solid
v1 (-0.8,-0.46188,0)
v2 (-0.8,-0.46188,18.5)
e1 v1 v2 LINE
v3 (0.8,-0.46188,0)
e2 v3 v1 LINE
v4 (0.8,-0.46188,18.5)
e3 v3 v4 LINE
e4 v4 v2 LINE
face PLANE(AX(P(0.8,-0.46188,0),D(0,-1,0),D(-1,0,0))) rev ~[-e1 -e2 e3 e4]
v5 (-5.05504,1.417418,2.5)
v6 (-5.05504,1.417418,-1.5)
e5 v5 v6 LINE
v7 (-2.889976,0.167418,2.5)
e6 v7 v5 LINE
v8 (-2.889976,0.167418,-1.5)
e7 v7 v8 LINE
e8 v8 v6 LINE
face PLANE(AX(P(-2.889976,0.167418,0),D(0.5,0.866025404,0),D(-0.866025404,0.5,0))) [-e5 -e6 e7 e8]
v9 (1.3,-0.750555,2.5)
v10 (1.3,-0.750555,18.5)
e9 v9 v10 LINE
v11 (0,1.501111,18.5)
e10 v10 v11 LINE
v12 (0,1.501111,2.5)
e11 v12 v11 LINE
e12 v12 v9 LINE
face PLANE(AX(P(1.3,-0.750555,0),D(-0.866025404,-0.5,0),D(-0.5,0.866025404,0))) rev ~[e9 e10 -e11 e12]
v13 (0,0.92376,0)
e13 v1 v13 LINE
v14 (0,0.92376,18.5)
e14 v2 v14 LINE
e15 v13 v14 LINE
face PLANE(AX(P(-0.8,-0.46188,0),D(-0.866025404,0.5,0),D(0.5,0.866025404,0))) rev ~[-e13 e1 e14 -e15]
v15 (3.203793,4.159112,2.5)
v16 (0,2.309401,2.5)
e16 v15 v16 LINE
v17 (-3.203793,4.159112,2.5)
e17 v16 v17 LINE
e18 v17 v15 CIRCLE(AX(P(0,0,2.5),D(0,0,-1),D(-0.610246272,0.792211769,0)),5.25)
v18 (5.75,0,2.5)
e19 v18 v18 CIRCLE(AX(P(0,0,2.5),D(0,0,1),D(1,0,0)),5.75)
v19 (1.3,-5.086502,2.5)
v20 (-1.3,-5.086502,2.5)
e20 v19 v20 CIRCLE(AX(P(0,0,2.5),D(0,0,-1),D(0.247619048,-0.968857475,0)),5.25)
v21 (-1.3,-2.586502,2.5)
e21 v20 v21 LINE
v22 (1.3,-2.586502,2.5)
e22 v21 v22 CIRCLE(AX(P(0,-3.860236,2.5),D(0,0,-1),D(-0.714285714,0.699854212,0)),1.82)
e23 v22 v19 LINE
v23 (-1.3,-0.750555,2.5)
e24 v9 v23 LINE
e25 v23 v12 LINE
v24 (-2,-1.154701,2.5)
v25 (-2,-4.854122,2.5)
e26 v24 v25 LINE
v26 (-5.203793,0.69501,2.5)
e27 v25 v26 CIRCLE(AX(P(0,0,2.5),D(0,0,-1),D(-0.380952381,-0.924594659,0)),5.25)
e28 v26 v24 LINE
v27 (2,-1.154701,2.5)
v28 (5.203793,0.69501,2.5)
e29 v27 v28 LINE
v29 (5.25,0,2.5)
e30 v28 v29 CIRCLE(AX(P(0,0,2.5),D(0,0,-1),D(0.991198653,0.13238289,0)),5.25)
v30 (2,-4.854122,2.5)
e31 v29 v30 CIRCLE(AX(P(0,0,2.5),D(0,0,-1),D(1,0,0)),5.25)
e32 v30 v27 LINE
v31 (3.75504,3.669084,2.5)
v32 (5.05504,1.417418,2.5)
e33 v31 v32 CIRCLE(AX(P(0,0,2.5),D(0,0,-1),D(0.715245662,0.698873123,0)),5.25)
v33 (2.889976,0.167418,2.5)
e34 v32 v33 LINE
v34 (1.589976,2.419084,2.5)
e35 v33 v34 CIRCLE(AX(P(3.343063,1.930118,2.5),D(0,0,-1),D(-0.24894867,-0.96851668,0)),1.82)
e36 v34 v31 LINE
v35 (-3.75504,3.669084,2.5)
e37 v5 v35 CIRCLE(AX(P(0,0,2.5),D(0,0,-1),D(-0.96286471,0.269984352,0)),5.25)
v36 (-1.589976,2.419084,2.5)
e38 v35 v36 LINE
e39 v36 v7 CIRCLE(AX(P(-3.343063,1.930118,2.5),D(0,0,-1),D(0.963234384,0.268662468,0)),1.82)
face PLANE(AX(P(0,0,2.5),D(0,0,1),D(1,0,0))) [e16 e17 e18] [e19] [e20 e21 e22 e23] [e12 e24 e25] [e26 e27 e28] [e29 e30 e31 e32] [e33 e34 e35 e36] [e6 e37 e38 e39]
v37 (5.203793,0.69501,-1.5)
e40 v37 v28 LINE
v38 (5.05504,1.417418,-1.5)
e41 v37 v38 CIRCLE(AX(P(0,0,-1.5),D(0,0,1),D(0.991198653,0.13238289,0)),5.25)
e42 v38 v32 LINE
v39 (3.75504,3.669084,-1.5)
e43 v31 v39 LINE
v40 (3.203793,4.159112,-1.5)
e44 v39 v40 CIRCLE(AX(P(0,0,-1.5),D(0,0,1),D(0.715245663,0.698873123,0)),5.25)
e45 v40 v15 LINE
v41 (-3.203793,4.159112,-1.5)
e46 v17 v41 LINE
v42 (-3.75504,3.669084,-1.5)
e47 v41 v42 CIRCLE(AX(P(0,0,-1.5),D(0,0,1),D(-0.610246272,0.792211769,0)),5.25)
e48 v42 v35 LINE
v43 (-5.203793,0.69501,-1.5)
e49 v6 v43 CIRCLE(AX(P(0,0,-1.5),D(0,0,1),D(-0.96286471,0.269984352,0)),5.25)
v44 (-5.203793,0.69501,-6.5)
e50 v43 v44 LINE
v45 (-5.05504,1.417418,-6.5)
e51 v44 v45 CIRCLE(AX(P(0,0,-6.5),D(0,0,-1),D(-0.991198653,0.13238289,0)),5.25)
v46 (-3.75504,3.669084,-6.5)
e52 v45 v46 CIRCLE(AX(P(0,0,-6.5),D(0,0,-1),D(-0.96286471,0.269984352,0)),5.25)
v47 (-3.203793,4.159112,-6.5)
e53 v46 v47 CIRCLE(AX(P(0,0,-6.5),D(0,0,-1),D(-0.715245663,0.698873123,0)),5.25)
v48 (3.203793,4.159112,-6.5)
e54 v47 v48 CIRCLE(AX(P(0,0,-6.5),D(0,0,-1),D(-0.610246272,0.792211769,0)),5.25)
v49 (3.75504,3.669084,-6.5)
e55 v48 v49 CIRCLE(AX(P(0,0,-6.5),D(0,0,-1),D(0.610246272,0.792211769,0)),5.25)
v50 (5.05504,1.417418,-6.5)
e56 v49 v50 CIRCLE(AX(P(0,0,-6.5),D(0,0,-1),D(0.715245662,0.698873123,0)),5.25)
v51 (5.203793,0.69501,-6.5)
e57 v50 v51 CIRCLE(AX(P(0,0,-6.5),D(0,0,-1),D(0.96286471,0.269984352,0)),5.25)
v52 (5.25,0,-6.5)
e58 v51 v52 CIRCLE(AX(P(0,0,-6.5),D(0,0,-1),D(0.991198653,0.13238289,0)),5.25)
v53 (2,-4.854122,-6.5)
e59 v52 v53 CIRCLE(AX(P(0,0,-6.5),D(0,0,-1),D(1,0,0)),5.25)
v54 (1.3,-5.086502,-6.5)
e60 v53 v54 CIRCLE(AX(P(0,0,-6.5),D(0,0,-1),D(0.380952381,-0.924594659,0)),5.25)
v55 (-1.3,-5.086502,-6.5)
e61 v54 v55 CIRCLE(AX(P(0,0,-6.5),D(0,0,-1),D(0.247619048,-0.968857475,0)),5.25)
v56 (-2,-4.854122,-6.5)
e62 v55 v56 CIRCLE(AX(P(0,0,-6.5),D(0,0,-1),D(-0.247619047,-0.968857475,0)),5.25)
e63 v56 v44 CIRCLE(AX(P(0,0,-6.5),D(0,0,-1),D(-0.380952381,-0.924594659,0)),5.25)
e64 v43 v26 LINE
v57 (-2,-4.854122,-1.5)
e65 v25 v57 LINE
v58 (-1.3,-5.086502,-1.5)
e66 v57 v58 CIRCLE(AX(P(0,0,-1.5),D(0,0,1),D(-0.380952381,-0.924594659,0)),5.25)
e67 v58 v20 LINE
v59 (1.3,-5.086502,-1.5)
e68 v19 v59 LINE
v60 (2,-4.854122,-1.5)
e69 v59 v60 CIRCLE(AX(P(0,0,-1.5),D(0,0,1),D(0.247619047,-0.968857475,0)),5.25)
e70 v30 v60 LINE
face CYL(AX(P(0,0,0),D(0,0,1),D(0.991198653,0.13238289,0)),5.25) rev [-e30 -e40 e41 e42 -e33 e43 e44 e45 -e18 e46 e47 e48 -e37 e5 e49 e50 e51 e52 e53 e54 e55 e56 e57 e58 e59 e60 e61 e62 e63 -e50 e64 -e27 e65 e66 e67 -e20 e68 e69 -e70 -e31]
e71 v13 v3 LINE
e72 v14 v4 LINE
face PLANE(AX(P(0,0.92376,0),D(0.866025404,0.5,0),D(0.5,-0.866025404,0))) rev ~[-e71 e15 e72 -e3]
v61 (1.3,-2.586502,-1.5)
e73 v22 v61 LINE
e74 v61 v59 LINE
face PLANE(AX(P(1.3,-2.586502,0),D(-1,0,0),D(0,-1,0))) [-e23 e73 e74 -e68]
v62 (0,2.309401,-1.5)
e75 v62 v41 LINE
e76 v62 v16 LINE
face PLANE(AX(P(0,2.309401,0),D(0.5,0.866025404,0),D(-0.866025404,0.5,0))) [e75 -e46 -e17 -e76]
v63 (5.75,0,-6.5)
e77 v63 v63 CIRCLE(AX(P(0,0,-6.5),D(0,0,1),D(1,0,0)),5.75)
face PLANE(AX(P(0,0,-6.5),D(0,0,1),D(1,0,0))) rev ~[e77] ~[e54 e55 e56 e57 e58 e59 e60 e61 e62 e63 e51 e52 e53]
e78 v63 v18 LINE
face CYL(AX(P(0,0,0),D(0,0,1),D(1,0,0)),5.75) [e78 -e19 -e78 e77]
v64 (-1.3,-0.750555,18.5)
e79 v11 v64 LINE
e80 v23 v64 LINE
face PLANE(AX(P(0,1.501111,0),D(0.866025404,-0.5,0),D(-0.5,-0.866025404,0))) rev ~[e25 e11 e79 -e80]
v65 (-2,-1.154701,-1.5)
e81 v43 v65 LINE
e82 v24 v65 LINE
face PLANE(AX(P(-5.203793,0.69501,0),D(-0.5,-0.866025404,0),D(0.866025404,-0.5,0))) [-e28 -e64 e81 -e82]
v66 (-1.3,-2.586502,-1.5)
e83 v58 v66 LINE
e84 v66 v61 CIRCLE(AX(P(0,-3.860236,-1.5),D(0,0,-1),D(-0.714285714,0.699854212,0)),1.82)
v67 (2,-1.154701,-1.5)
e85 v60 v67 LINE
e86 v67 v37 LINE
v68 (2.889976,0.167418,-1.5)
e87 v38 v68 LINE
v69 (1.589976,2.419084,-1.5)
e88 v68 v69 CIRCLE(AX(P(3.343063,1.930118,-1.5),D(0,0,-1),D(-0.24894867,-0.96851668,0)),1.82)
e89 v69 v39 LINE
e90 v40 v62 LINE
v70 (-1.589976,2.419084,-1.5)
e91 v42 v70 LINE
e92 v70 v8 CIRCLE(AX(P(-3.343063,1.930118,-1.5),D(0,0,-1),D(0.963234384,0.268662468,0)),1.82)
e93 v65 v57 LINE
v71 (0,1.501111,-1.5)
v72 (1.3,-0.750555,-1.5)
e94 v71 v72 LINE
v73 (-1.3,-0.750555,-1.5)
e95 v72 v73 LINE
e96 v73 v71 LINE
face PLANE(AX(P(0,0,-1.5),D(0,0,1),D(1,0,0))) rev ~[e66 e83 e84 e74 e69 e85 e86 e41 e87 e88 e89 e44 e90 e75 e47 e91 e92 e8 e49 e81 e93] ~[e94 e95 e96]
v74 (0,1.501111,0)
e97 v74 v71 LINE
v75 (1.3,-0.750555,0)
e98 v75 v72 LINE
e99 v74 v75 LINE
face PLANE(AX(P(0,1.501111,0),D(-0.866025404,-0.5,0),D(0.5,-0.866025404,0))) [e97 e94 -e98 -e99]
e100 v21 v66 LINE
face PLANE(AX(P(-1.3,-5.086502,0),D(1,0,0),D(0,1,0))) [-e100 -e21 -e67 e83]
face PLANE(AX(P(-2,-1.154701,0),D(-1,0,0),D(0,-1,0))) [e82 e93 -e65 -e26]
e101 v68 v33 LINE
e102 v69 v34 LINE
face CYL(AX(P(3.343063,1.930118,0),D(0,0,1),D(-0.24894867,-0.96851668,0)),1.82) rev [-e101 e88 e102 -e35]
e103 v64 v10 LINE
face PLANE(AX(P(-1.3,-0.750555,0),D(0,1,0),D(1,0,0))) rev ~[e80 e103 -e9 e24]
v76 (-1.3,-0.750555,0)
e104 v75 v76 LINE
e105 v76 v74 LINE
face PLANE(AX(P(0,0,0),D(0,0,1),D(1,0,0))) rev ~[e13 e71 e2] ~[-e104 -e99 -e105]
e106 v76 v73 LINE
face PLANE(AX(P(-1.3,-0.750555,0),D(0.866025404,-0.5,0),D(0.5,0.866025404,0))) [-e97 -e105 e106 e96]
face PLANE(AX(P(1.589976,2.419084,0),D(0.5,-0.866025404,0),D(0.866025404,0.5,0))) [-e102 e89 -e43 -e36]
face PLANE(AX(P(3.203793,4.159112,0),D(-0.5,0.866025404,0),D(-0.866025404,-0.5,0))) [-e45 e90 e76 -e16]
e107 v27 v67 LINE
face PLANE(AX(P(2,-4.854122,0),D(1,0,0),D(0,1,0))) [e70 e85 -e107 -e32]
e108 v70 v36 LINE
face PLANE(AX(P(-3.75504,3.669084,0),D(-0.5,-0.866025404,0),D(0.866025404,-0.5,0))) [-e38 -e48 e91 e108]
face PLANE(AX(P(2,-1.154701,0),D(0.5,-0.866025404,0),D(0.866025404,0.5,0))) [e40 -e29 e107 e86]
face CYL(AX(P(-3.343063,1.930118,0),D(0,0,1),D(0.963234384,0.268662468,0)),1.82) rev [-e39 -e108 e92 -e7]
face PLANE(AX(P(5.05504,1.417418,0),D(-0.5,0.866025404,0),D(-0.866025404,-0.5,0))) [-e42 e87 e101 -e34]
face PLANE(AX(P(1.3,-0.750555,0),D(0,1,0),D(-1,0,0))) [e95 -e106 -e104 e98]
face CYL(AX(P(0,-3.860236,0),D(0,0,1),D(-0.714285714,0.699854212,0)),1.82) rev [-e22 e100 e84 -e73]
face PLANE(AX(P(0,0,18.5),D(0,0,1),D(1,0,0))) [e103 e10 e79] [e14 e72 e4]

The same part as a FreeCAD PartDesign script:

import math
import FreeCAD as App
import Part
import Sketcher

V = App.Vector
Q = App.Units.Quantity

doc = App.newDocument("Part")
body = doc.addObject("PartDesign::Body", "Body")

# Sketch on XY plane
sketch1 = body.newObject("Sketcher::SketchObject", "Sketch")
sketch1.AttachmentSupport = (doc.getObject("XY_Plane"), [""])
sketch1.MapMode = "FlatFace"
sketch1.addGeometry(Part.Circle(V(0, 0, 0), V(0, 0, 1), 5.75), False)
sketch1.addGeometry(Part.ArcOfCircle(Part.Circle(V(0, 0, 0), V(0, 0, 1), 5.25), math.radians(172.392688), math.radians(247.607312)), False)
sketch1.addGeometry(Part.LineSegment(V(-5.203793, 0.69501, 0), V(-2, -1.154701, 0)), False)
sketch1.addGeometry(Part.LineSegment(V(-2, -1.154701, 0), V(-2, -4.854122, 0)), False)
sketch1.addGeometry(Part.ArcOfCircle(Part.Circle(V(0, 0, 0), V(0, 0, 1), 5.25), math.radians(-104.336664), math.radians(-75.663336)), False)
sketch1.addGeometry(Part.LineSegment(V(-1.3, -5.086502, 0), V(-1.3, -2.586502, 0)), False)
sketch1.addGeometry(Part.ArcOfCircle(Part.Circle(V(0, -3.860236, 0), V(0, 0, 1), 1.82), math.radians(44.415309), math.radians(135.584691)), False)
sketch1.addGeometry(Part.LineSegment(V(1.3, -2.586502, 0), V(1.3, -5.086502, 0)), False)
sketch1.addGeometry(Part.ArcOfCircle(Part.Circle(V(0, 0, 0), V(0, 0, 1), 5.25), math.radians(-67.607312), math.radians(0)), False)
sketch1.addGeometry(Part.LineSegment(V(2, -4.854122, 0), V(2, -1.154701, 0)), False)
sketch1.addGeometry(Part.LineSegment(V(2, -1.154701, 0), V(5.203793, 0.69501, 0)), False)
sketch1.addGeometry(Part.ArcOfCircle(Part.Circle(V(0, 0, 0), V(0, 0, 1), 5.25), math.radians(0), math.radians(7.607312)), False)
sketch1.addGeometry(Part.ArcOfCircle(Part.Circle(V(0, 0, 0), V(0, 0, 1), 5.25), math.radians(135.663336), math.radians(164.336664)), False)
sketch1.addGeometry(Part.LineSegment(V(-3.75504, 3.669084, 0), V(-1.589976, 2.419084, 0)), False)
sketch1.addGeometry(Part.ArcOfCircle(Part.Circle(V(-3.343063, 1.930118, 0), V(0, 0, 1), 1.82), math.radians(-75.584691), math.radians(15.584691)), False)
sketch1.addGeometry(Part.LineSegment(V(-2.889976, 0.167418, 0), V(-5.05504, 1.417418, 0)), False)
sketch1.addGeometry(Part.LineSegment(V(1.3, -0.750555, 0), V(-1.3, -0.750555, 0)), False)
sketch1.addGeometry(Part.LineSegment(V(-1.3, -0.750555, 0), V(0, 1.501111, 0)), False)
sketch1.addGeometry(Part.LineSegment(V(0, 1.501111, 0), V(1.3, -0.750555, 0)), False)
sketch1.addGeometry(Part.ArcOfCircle(Part.Circle(V(0, 0, 0), V(0, 0, 1), 5.25), math.radians(15.663336), math.radians(44.336664)), False)
sketch1.addGeometry(Part.LineSegment(V(5.05504, 1.417418, 0), V(2.889976, 0.167418, 0)), False)
sketch1.addGeometry(Part.ArcOfCircle(Part.Circle(V(3.343063, 1.930118, 0), V(0, 0, 1), 1.82), math.radians(164.415309), math.radians(255.584691)), False)
sketch1.addGeometry(Part.LineSegment(V(1.589976, 2.419084, 0), V(3.75504, 3.669084, 0)), False)
sketch1.addGeometry(Part.ArcOfCircle(Part.Circle(V(0, 0, 0), V(0, 0, 1), 5.25), math.radians(52.392688), math.radians(127.607312)), False)
sketch1.addGeometry(Part.LineSegment(V(3.203793, 4.159112, 0), V(0, 2.309401, 0)), False)
sketch1.addGeometry(Part.LineSegment(V(0, 2.309401, 0), V(-3.203793, 4.159112, 0)), False)
sketch1.addConstraint(Sketcher.Constraint("Coincident", 1, 1, 2, 1))
sketch1.addConstraint(Sketcher.Constraint("Coincident", 2, 2, 3, 1))
sketch1.addConstraint(Sketcher.Constraint("Coincident", 3, 2, 1, 2))
sketch1.addConstraint(Sketcher.Constraint("Coincident", 4, 1, 5, 1))
sketch1.addConstraint(Sketcher.Constraint("Coincident", 5, 2, 6, 2))
sketch1.addConstraint(Sketcher.Constraint("Coincident", 6, 1, 7, 1))
sketch1.addConstraint(Sketcher.Constraint("Coincident", 7, 2, 4, 2))
sketch1.addConstraint(Sketcher.Constraint("Coincident", 8, 1, 9, 1))
sketch1.addConstraint(Sketcher.Constraint("Coincident", 9, 2, 10, 1))
sketch1.addConstraint(Sketcher.Constraint("Coincident", 10, 2, 11, 2))
sketch1.addConstraint(Sketcher.Constraint("Tangent", 11, 1, 8, 2))
sketch1.addConstraint(Sketcher.Constraint("Coincident", 12, 1, 13, 1))
sketch1.addConstraint(Sketcher.Constraint("Coincident", 13, 2, 14, 2))
sketch1.addConstraint(Sketcher.Constraint("Coincident", 14, 1, 15, 1))
sketch1.addConstraint(Sketcher.Constraint("Coincident", 15, 2, 12, 2))
sketch1.addConstraint(Sketcher.Constraint("Coincident", 16, 2, 17, 1))
sketch1.addConstraint(Sketcher.Constraint("Coincident", 17, 2, 18, 1))
sketch1.addConstraint(Sketcher.Constraint("Coincident", 18, 2, 16, 1))
sketch1.addConstraint(Sketcher.Constraint("Coincident", 19, 1, 20, 1))
sketch1.addConstraint(Sketcher.Constraint("Coincident", 20, 2, 21, 2))
sketch1.addConstraint(Sketcher.Constraint("Coincident", 21, 1, 22, 1))
sketch1.addConstraint(Sketcher.Constraint("Coincident", 22, 2, 19, 2))
sketch1.addConstraint(Sketcher.Constraint("Coincident", 23, 1, 24, 1))
sketch1.addConstraint(Sketcher.Constraint("Coincident", 24, 2, 25, 1))
sketch1.addConstraint(Sketcher.Constraint("Coincident", 25, 2, 23, 2))
sketch1.addConstraint(Sketcher.Constraint("Vertical", 3))
sketch1.addConstraint(Sketcher.Constraint("Vertical", 5))
sketch1.addConstraint(Sketcher.Constraint("Vertical", 7))
sketch1.addConstraint(Sketcher.Constraint("Vertical", 9))
sketch1.addConstraint(Sketcher.Constraint("Horizontal", 16))
sketch1.addConstraint(Sketcher.Constraint("Coincident", 0, 3, -1, 1))
sketch1.addConstraint(Sketcher.Constraint("Coincident", 1, 3, -1, 1))
sketch1.addConstraint(Sketcher.Constraint("Coincident", 4, 3, -1, 1))
sketch1.addConstraint(Sketcher.Constraint("Coincident", 8, 3, -1, 1))
sketch1.addConstraint(Sketcher.Constraint("Coincident", 12, 3, -1, 1))
sketch1.addConstraint(Sketcher.Constraint("Coincident", 19, 3, -1, 1))
sketch1.addConstraint(Sketcher.Constraint("Coincident", 23, 3, -1, 1))
sketch1.addConstraint(Sketcher.Constraint("Equal", 1, 4))
sketch1.addConstraint(Sketcher.Constraint("Equal", 4, 8))
sketch1.addConstraint(Sketcher.Constraint("Equal", 8, 11))
sketch1.addConstraint(Sketcher.Constraint("Equal", 11, 12))
sketch1.addConstraint(Sketcher.Constraint("Equal", 6, 14))
sketch1.addConstraint(Sketcher.Constraint("Equal", 12, 19))
sketch1.addConstraint(Sketcher.Constraint("Equal", 14, 21))
sketch1.addConstraint(Sketcher.Constraint("Equal", 19, 23))
sketch1.addConstraint(Sketcher.Constraint("Symmetric", 14, 3, 21, 3, -2))
sketch1.addConstraint(Sketcher.Constraint("Symmetric", 5, 2, 6, 1, -2))
sketch1.addConstraint(Sketcher.Constraint("Symmetric", 2, 2, 9, 2, -2))
sketch1.addConstraint(Sketcher.Constraint("PointOnObject", 11, 1, -1))
sketch1.addConstraint(Sketcher.Constraint("PointOnObject", 17, 2, -2))
sketch1.addConstraint(Sketcher.Constraint("PointOnObject", 24, 2, -2))
sketch1.addConstraint(Sketcher.Constraint("Parallel", 2, 13))
sketch1.addConstraint(Sketcher.Constraint("Parallel", 13, 15))
sketch1.addConstraint(Sketcher.Constraint("Perpendicular", 15, 17))
sketch1.addConstraint(Sketcher.Constraint("Perpendicular", 10, 18))
sketch1.addConstraint(Sketcher.Constraint("Perpendicular", 18, 20))
sketch1.addConstraint(Sketcher.Constraint("Parallel", 20, 22))
sketch1.addConstraint(Sketcher.Constraint("Parallel", 22, 24))
sketch1.addConstraint(Sketcher.Constraint("Perpendicular", 17, 25))
sketch1.addConstraint(Sketcher.Constraint("Horizontal", 1, 1, 10, 2))
sketch1.addConstraint(Sketcher.Constraint("Horizontal", 15, 2, 19, 1))
sketch1.addConstraint(Sketcher.Constraint("Horizontal", 13, 2, 21, 1))
sketch1.addConstraint(Sketcher.Constraint("Vertical", 5, 2, 16, 2))
sketch1.addConstraint(Sketcher.Constraint("Equal", 13, 15))
sketch1.addConstraint(Sketcher.Constraint("Equal", 10, 24))
sketch1.addConstraint(Sketcher.Constraint("Diameter", 0, Q("11.5 mm")))
sketch1.addConstraint(Sketcher.Constraint("Angle", 2, Q("-30 deg")))
sketch1.addConstraint(Sketcher.Constraint("Radius", 1, Q("5.25 mm")))
sketch1.addConstraint(Sketcher.Constraint("Radius", 6, Q("1.82 mm")))
sketch1.addConstraint(Sketcher.Constraint("DistanceX", 16, 2, 16, 1, Q("2.6 mm")))
sketch1.addConstraint(Sketcher.Constraint("DistanceY", 5, 1, 5, 2, Q("2.5 mm")))
sketch1.addConstraint(Sketcher.Constraint("DistanceX", 2, 2, -1, 1, Q("2 mm")))
sketch1.addConstraint(Sketcher.Constraint("Distance", 13, Q("2.5 mm")))
sketch1.addConstraint(Sketcher.Constraint("DistanceX", 14, 1, 13, 2, Q("1.3 mm")))
sketch1.addConstraint(Sketcher.Constraint("DistanceY", 3, 2, 3, 1, Q("3.699421 mm")))
sketch1.addConstraint(Sketcher.Constraint("DistanceY", 14, 1, 14, 3, Q("1.7627 mm")))
sketch1.addConstraint(Sketcher.Constraint("DistanceY", -1, 1, 17, 2, Q("1.501111 mm")))
pad1 = body.newObject("PartDesign::Pad", "Pad")
pad1.Profile = sketch1
pad1.Length = 2.5

# Sketch on XY plane
sketch2 = body.newObject("Sketcher::SketchObject", "Sketch001")
sketch2.AttachmentSupport = (doc.getObject("XY_Plane"), [""])
sketch2.MapMode = "FlatFace"
sketch2.addGeometry(Part.LineSegment(V(1.3, -0.750555, 0), V(0, 1.501111, 0)), False)
sketch2.addGeometry(Part.LineSegment(V(0, 1.501111, 0), V(-1.3, -0.750555, 0)), False)
sketch2.addGeometry(Part.LineSegment(V(-1.3, -0.750555, 0), V(1.3, -0.750555, 0)), False)
sketch2.addGeometry(Part.LineSegment(V(0.8, -0.46188, 0), V(-0.8, -0.46188, 0)), False)
sketch2.addGeometry(Part.LineSegment(V(-0.8, -0.46188, 0), V(0, 0.92376, 0)), False)
sketch2.addGeometry(Part.LineSegment(V(0, 0.92376, 0), V(0.8, -0.46188, 0)), False)
sketch2.addConstraint(Sketcher.Constraint("Coincident", 0, 2, 1, 1))
sketch2.addConstraint(Sketcher.Constraint("Coincident", 1, 2, 2, 1))
sketch2.addConstraint(Sketcher.Constraint("Coincident", 2, 2, 0, 1))
sketch2.addConstraint(Sketcher.Constraint("Coincident", 3, 2, 4, 1))
sketch2.addConstraint(Sketcher.Constraint("Coincident", 4, 2, 5, 1))
sketch2.addConstraint(Sketcher.Constraint("Coincident", 5, 2, 3, 1))
sketch2.addConstraint(Sketcher.Constraint("Horizontal", 2))
sketch2.addConstraint(Sketcher.Constraint("Horizontal", 3))
sketch2.addConstraint(Sketcher.Constraint("PointOnObject", 0, 2, -2))
sketch2.addConstraint(Sketcher.Constraint("PointOnObject", 4, 2, -2))
sketch2.addConstraint(Sketcher.Constraint("Parallel", 1, 4))
sketch2.addConstraint(Sketcher.Constraint("Parallel", 0, 5))
sketch2.addConstraint(Sketcher.Constraint("Equal", 0, 1))
sketch2.addConstraint(Sketcher.Constraint("Angle", 0, Q("120 deg")))
sketch2.addConstraint(Sketcher.Constraint("DistanceX", 2, 1, 2, 2, Q("2.6 mm")))
sketch2.addConstraint(Sketcher.Constraint("DistanceX", 3, 2, 3, 1, Q("1.6 mm")))
sketch2.addConstraint(Sketcher.Constraint("DistanceY", -1, 1, 0, 2, Q("1.501111 mm")))
sketch2.addConstraint(Sketcher.Constraint("DistanceY", 3, 2, -1, 1, Q("0.46188 mm")))
pad2 = body.newObject("PartDesign::Pad", "Pad001")
pad2.Profile = sketch2
pad2.Length = 18.5

# Sketch on XY plane
sketch3 = body.newObject("Sketcher::SketchObject", "Sketch002")
sketch3.AttachmentSupport = (doc.getObject("XY_Plane"), [""])
sketch3.MapMode = "FlatFace"
sketch3.addGeometry(Part.Circle(V(0, 0, 0), V(0, 0, 1), 5.75), False)
sketch3.addGeometry(Part.ArcOfCircle(Part.Circle(V(0, 0, 0), V(0, 0, 1), 5.25), math.radians(7.607312), math.radians(15.663336)), False)
sketch3.addGeometry(Part.ArcOfCircle(Part.Circle(V(0, 0, 0), V(0, 0, 1), 5.25), math.radians(0), math.radians(7.607312)), False)
sketch3.addGeometry(Part.ArcOfCircle(Part.Circle(V(0, 0, 0), V(0, 0, 1), 5.25), math.radians(-67.607312), math.radians(0)), False)
sketch3.addGeometry(Part.ArcOfCircle(Part.Circle(V(0, 0, 0), V(0, 0, 1), 5.25), math.radians(-75.663336), math.radians(-67.607312)), False)
sketch3.addGeometry(Part.ArcOfCircle(Part.Circle(V(0, 0, 0), V(0, 0, 1), 5.25), math.radians(-104.336664), math.radians(-75.663336)), False)
sketch3.addGeometry(Part.ArcOfCircle(Part.Circle(V(0, 0, 0), V(0, 0, 1), 5.25), math.radians(-112.392688), math.radians(-104.336664)), False)
sketch3.addGeometry(Part.ArcOfCircle(Part.Circle(V(0, 0, 0), V(0, 0, 1), 5.25), math.radians(172.392688), math.radians(247.607312)), False)
sketch3.addGeometry(Part.ArcOfCircle(Part.Circle(V(0, 0, 0), V(0, 0, 1), 5.25), math.radians(164.336664), math.radians(172.392688)), False)
sketch3.addGeometry(Part.ArcOfCircle(Part.Circle(V(0, 0, 0), V(0, 0, 1), 5.25), math.radians(135.663336), math.radians(164.336664)), False)
sketch3.addGeometry(Part.ArcOfCircle(Part.Circle(V(0, 0, 0), V(0, 0, 1), 5.25), math.radians(127.607312), math.radians(135.663336)), False)
sketch3.addGeometry(Part.ArcOfCircle(Part.Circle(V(0, 0, 0), V(0, 0, 1), 5.25), math.radians(52.392688), math.radians(127.607312)), False)
sketch3.addGeometry(Part.ArcOfCircle(Part.Circle(V(0, 0, 0), V(0, 0, 1), 5.25), math.radians(44.336664), math.radians(52.392688)), False)
sketch3.addGeometry(Part.ArcOfCircle(Part.Circle(V(0, 0, 0), V(0, 0, 1), 5.25), math.radians(15.663336), math.radians(44.336664)), False)
sketch3.addConstraint(Sketcher.Constraint("Tangent", 1, 1, 2, 2))
sketch3.addConstraint(Sketcher.Constraint("Tangent", 2, 1, 3, 2))
sketch3.addConstraint(Sketcher.Constraint("Tangent", 3, 1, 4, 2))
sketch3.addConstraint(Sketcher.Constraint("Tangent", 4, 1, 5, 2))
sketch3.addConstraint(Sketcher.Constraint("Tangent", 5, 1, 6, 2))
sketch3.addConstraint(Sketcher.Constraint("Tangent", 6, 1, 7, 2))
sketch3.addConstraint(Sketcher.Constraint("Tangent", 7, 1, 8, 2))
sketch3.addConstraint(Sketcher.Constraint("Tangent", 8, 1, 9, 2))
sketch3.addConstraint(Sketcher.Constraint("Tangent", 9, 1, 10, 2))
sketch3.addConstraint(Sketcher.Constraint("Tangent", 10, 1, 11, 2))
sketch3.addConstraint(Sketcher.Constraint("Tangent", 11, 1, 12, 2))
sketch3.addConstraint(Sketcher.Constraint("Tangent", 12, 1, 13, 2))
sketch3.addConstraint(Sketcher.Constraint("Tangent", 13, 1, 1, 2))
sketch3.addConstraint(Sketcher.Constraint("Coincident", 0, 3, -1, 1))
sketch3.addConstraint(Sketcher.Constraint("Coincident", 1, 3, -1, 1))
sketch3.addConstraint(Sketcher.Constraint("Coincident", 3, 3, -1, 1))
sketch3.addConstraint(Sketcher.Constraint("Coincident", 5, 3, -1, 1))
sketch3.addConstraint(Sketcher.Constraint("Coincident", 7, 3, -1, 1))
sketch3.addConstraint(Sketcher.Constraint("Coincident", 9, 3, -1, 1))
sketch3.addConstraint(Sketcher.Constraint("Coincident", 11, 3, -1, 1))
sketch3.addConstraint(Sketcher.Constraint("PointOnObject", 2, 1, -1))
sketch3.addConstraint(Sketcher.Constraint("Horizontal", 4, 1, 5, 1))
sketch3.addConstraint(Sketcher.Constraint("Horizontal", 3, 1, 6, 1))
sketch3.addConstraint(Sketcher.Constraint("Horizontal", 1, 1, 7, 1))
sketch3.addConstraint(Sketcher.Constraint("Horizontal", 10, 1, 11, 1))
sketch3.addConstraint(Sketcher.Constraint("Horizontal", 9, 1, 12, 1))
sketch3.addConstraint(Sketcher.Constraint("Horizontal", 8, 1, 13, 1))
sketch3.addConstraint(Sketcher.Constraint("Diameter", 0, Q("11.5 mm")))
sketch3.addConstraint(Sketcher.Constraint("Radius", 1, Q("5.25 mm")))
sketch3.addConstraint(Sketcher.Constraint("DistanceX", -1, 1, 3, 1, Q("2 mm")))
sketch3.addConstraint(Sketcher.Constraint("DistanceX", 7, 1, 10, 1, Q("2 mm")))
sketch3.addConstraint(Sketcher.Constraint("DistanceX", -1, 1, 4, 1, Q("1.3 mm")))
sketch3.addConstraint(Sketcher.Constraint("DistanceX", 8, 1, 9, 1, Q("1.3 mm")))
sketch3.addConstraint(Sketcher.Constraint("DistanceY", 7, 1, 10, 1, Q("3.464102 mm")))
sketch3.addConstraint(Sketcher.Constraint("DistanceX", 8, 1, -1, 1, Q("5.05504 mm")))
pad3 = body.newObject("PartDesign::Pad", "Pad002")
pad3.Profile = sketch3
pad3.Length = 6.5
pad3.Reversed = True

# Sketch on XY plane
sketch4 = body.newObject("Sketcher::SketchObject", "Sketch003")
sketch4.AttachmentSupport = (doc.getObject("XY_Plane"), [""])
sketch4.MapMode = "FlatFace"
sketch4.addGeometry(Part.LineSegment(V(2, -1.154701, 0), V(5.203793, 0.69501, 0)), False)
sketch4.addGeometry(Part.ArcOfCircle(Part.Circle(V(0, 0, 0), V(0, 0, 1), 5.25), math.radians(7.607312), math.radians(15.663336)), False)
sketch4.addGeometry(Part.LineSegment(V(5.05504, 1.417418, 0), V(2.889976, 0.167418, 0)), False)
sketch4.addGeometry(Part.ArcOfCircle(Part.Circle(V(3.343063, 1.930118, 0), V(0, 0, 1), 1.82), math.radians(164.415309), math.radians(255.584691)), False)
sketch4.addGeometry(Part.LineSegment(V(1.589976, 2.419084, 0), V(3.75504, 3.669084, 0)), False)
sketch4.addGeometry(Part.ArcOfCircle(Part.Circle(V(0, 0, 0), V(0, 0, 1), 5.25), math.radians(44.336664), math.radians(52.392688)), False)
sketch4.addGeometry(Part.LineSegment(V(3.203793, 4.159112, 0), V(0, 2.309401, 0)), False)
sketch4.addGeometry(Part.LineSegment(V(0, 2.309401, 0), V(-3.203793, 4.159112, 0)), False)
sketch4.addGeometry(Part.ArcOfCircle(Part.Circle(V(0, 0, 0), V(0, 0, 1), 5.25), math.radians(127.607312), math.radians(135.663336)), False)
sketch4.addGeometry(Part.LineSegment(V(-3.75504, 3.669084, 0), V(-1.589976, 2.419084, 0)), False)
sketch4.addGeometry(Part.ArcOfCircle(Part.Circle(V(-3.343063, 1.930118, 0), V(0, 0, 1), 1.82), math.radians(-75.584691), math.radians(15.584691)), False)
sketch4.addGeometry(Part.LineSegment(V(-2.889976, 0.167418, 0), V(-5.05504, 1.417418, 0)), False)
sketch4.addGeometry(Part.ArcOfCircle(Part.Circle(V(0, 0, 0), V(0, 0, 1), 5.25), math.radians(164.336664), math.radians(172.392688)), False)
sketch4.addGeometry(Part.LineSegment(V(-5.203793, 0.69501, 0), V(-2, -1.154701, 0)), False)
sketch4.addGeometry(Part.LineSegment(V(-2, -1.154701, 0), V(-2, -4.854122, 0)), False)
sketch4.addGeometry(Part.ArcOfCircle(Part.Circle(V(0, 0, 0), V(0, 0, 1), 5.25), math.radians(-112.392688), math.radians(-104.336664)), False)
sketch4.addGeometry(Part.LineSegment(V(-1.3, -5.086502, 0), V(-1.3, -2.586502, 0)), False)
sketch4.addGeometry(Part.ArcOfCircle(Part.Circle(V(0, -3.860236, 0), V(0, 0, 1), 1.82), math.radians(44.415309), math.radians(135.584691)), False)
sketch4.addGeometry(Part.LineSegment(V(1.3, -2.586502, 0), V(1.3, -5.086502, 0)), False)
sketch4.addGeometry(Part.ArcOfCircle(Part.Circle(V(0, 0, 0), V(0, 0, 1), 5.25), math.radians(-75.663336), math.radians(-67.607312)), False)
sketch4.addGeometry(Part.LineSegment(V(2, -4.854122, 0), V(2, -1.154701, 0)), False)
sketch4.addGeometry(Part.LineSegment(V(1.3, -0.750555, 0), V(-1.3, -0.750555, 0)), False)
sketch4.addGeometry(Part.LineSegment(V(-1.3, -0.750555, 0), V(0, 1.501111, 0)), False)
sketch4.addGeometry(Part.LineSegment(V(0, 1.501111, 0), V(1.3, -0.750555, 0)), False)
sketch4.addConstraint(Sketcher.Constraint("Coincident", 0, 2, 1, 1))
sketch4.addConstraint(Sketcher.Constraint("Coincident", 1, 2, 2, 1))
sketch4.addConstraint(Sketcher.Constraint("Coincident", 2, 2, 3, 2))
sketch4.addConstraint(Sketcher.Constraint("Coincident", 3, 1, 4, 1))
sketch4.addConstraint(Sketcher.Constraint("Coincident", 4, 2, 5, 1))
sketch4.addConstraint(Sketcher.Constraint("Coincident", 5, 2, 6, 1))
sketch4.addConstraint(Sketcher.Constraint("Coincident", 6, 2, 7, 1))
sketch4.addConstraint(Sketcher.Constraint("Coincident", 7, 2, 8, 1))
sketch4.addConstraint(Sketcher.Constraint("Coincident", 8, 2, 9, 1))
sketch4.addConstraint(Sketcher.Constraint("Coincident", 9, 2, 10, 2))
sketch4.addConstraint(Sketcher.Constraint("Coincident", 10, 1, 11, 1))
sketch4.addConstraint(Sketcher.Constraint("Coincident", 11, 2, 12, 1))
sketch4.addConstraint(Sketcher.Constraint("Coincident", 12, 2, 13, 1))
sketch4.addConstraint(Sketcher.Constraint("Coincident", 13, 2, 14, 1))
sketch4.addConstraint(Sketcher.Constraint("Coincident", 14, 2, 15, 1))
sketch4.addConstraint(Sketcher.Constraint("Coincident", 15, 2, 16, 1))
sketch4.addConstraint(Sketcher.Constraint("Coincident", 16, 2, 17, 2))
sketch4.addConstraint(Sketcher.Constraint("Coincident", 17, 1, 18, 1))
sketch4.addConstraint(Sketcher.Constraint("Coincident", 18, 2, 19, 1))
sketch4.addConstraint(Sketcher.Constraint("Coincident", 19, 2, 20, 1))
sketch4.addConstraint(Sketcher.Constraint("Coincident", 20, 2, 0, 1))
sketch4.addConstraint(Sketcher.Constraint("Coincident", 21, 2, 22, 1))
sketch4.addConstraint(Sketcher.Constraint("Coincident", 22, 2, 23, 1))
sketch4.addConstraint(Sketcher.Constraint("Coincident", 23, 2, 21, 1))
sketch4.addConstraint(Sketcher.Constraint("Vertical", 14))
sketch4.addConstraint(Sketcher.Constraint("Vertical", 16))
sketch4.addConstraint(Sketcher.Constraint("Vertical", 18))
sketch4.addConstraint(Sketcher.Constraint("Vertical", 20))
sketch4.addConstraint(Sketcher.Constraint("Horizontal", 21))
sketch4.addConstraint(Sketcher.Constraint("Coincident", 1, 3, -1, 1))
sketch4.addConstraint(Sketcher.Constraint("Coincident", 5, 3, -1, 1))
sketch4.addConstraint(Sketcher.Constraint("Coincident", 8, 3, -1, 1))
sketch4.addConstraint(Sketcher.Constraint("Coincident", 12, 3, -1, 1))
sketch4.addConstraint(Sketcher.Constraint("Coincident", 15, 3, -1, 1))
sketch4.addConstraint(Sketcher.Constraint("Coincident", 19, 3, -1, 1))
sketch4.addConstraint(Sketcher.Constraint("Equal", 1, 5))
sketch4.addConstraint(Sketcher.Constraint("Equal", 5, 8))
sketch4.addConstraint(Sketcher.Constraint("Equal", 3, 10))
sketch4.addConstraint(Sketcher.Constraint("Equal", 8, 12))
sketch4.addConstraint(Sketcher.Constraint("Equal", 12, 15))
sketch4.addConstraint(Sketcher.Constraint("Equal", 10, 17))
sketch4.addConstraint(Sketcher.Constraint("Equal", 15, 19))
sketch4.addConstraint(Sketcher.Constraint("Symmetric", 3, 3, 10, 3, -2))
sketch4.addConstraint(Sketcher.Constraint("Symmetric", 16, 2, 17, 1, -2))
sketch4.addConstraint(Sketcher.Constraint("Symmetric", 13, 2, 20, 2, -2))
sketch4.addConstraint(Sketcher.Constraint("PointOnObject", 6, 2, -2))
sketch4.addConstraint(Sketcher.Constraint("PointOnObject", 22, 2, -2))
sketch4.addConstraint(Sketcher.Constraint("Parallel", 0, 2))
sketch4.addConstraint(Sketcher.Constraint("Parallel", 2, 4))
sketch4.addConstraint(Sketcher.Constraint("Parallel", 4, 6))
sketch4.addConstraint(Sketcher.Constraint("Parallel", 7, 9))
sketch4.addConstraint(Sketcher.Constraint("Parallel", 9, 11))
sketch4.addConstraint(Sketcher.Constraint("Parallel", 11, 13))
sketch4.addConstraint(Sketcher.Constraint("Perpendicular", 13, 22))
sketch4.addConstraint(Sketcher.Constraint("Perpendicular", 6, 23))
sketch4.addConstraint(Sketcher.Constraint("Horizontal", 5, 2, 7, 2))
sketch4.addConstraint(Sketcher.Constraint("Horizontal", 4, 2, 8, 2))
sketch4.addConstraint(Sketcher.Constraint("Horizontal", 2, 2, 10, 1))
sketch4.addConstraint(Sketcher.Constraint("Vertical", 16, 2, 21, 2))
sketch4.addConstraint(Sketcher.Constraint("Equal", 2, 4))
sketch4.addConstraint(Sketcher.Constraint("Equal", 0, 6))
sketch4.addConstraint(Sketcher.Constraint("Angle", 0, Q("30 deg")))
sketch4.addConstraint(Sketcher.Constraint("Radius", 1, Q("5.25 mm")))
sketch4.addConstraint(Sketcher.Constraint("Radius", 3, Q("1.82 mm")))
sketch4.addConstraint(Sketcher.Constraint("DistanceX", 21, 2, 21, 1, Q("2.6 mm")))
sketch4.addConstraint(Sketcher.Constraint("DistanceY", 16, 1, 16, 2, Q("2.5 mm")))
sketch4.addConstraint(Sketcher.Constraint("DistanceX", 13, 2, -1, 1, Q("2 mm")))
sketch4.addConstraint(Sketcher.Constraint("Distance", 2, Q("2.5 mm")))
sketch4.addConstraint(Sketcher.Constraint("DistanceX", 3, 1, 2, 2, Q("1.3 mm")))
sketch4.addConstraint(Sketcher.Constraint("DistanceY", 14, 2, 14, 1, Q("3.699421 mm")))
sketch4.addConstraint(Sketcher.Constraint("DistanceY", 1, 2, 3, 3, Q("0.5127 mm")))
sketch4.addConstraint(Sketcher.Constraint("DistanceY", -1, 1, 22, 2, Q("1.501111 mm")))
pad4 = body.newObject("PartDesign::Pad", "Pad003")
pad4.Profile = sketch4
pad4.Length = 1.5
pad4.Reversed = True

doc.recompute()
